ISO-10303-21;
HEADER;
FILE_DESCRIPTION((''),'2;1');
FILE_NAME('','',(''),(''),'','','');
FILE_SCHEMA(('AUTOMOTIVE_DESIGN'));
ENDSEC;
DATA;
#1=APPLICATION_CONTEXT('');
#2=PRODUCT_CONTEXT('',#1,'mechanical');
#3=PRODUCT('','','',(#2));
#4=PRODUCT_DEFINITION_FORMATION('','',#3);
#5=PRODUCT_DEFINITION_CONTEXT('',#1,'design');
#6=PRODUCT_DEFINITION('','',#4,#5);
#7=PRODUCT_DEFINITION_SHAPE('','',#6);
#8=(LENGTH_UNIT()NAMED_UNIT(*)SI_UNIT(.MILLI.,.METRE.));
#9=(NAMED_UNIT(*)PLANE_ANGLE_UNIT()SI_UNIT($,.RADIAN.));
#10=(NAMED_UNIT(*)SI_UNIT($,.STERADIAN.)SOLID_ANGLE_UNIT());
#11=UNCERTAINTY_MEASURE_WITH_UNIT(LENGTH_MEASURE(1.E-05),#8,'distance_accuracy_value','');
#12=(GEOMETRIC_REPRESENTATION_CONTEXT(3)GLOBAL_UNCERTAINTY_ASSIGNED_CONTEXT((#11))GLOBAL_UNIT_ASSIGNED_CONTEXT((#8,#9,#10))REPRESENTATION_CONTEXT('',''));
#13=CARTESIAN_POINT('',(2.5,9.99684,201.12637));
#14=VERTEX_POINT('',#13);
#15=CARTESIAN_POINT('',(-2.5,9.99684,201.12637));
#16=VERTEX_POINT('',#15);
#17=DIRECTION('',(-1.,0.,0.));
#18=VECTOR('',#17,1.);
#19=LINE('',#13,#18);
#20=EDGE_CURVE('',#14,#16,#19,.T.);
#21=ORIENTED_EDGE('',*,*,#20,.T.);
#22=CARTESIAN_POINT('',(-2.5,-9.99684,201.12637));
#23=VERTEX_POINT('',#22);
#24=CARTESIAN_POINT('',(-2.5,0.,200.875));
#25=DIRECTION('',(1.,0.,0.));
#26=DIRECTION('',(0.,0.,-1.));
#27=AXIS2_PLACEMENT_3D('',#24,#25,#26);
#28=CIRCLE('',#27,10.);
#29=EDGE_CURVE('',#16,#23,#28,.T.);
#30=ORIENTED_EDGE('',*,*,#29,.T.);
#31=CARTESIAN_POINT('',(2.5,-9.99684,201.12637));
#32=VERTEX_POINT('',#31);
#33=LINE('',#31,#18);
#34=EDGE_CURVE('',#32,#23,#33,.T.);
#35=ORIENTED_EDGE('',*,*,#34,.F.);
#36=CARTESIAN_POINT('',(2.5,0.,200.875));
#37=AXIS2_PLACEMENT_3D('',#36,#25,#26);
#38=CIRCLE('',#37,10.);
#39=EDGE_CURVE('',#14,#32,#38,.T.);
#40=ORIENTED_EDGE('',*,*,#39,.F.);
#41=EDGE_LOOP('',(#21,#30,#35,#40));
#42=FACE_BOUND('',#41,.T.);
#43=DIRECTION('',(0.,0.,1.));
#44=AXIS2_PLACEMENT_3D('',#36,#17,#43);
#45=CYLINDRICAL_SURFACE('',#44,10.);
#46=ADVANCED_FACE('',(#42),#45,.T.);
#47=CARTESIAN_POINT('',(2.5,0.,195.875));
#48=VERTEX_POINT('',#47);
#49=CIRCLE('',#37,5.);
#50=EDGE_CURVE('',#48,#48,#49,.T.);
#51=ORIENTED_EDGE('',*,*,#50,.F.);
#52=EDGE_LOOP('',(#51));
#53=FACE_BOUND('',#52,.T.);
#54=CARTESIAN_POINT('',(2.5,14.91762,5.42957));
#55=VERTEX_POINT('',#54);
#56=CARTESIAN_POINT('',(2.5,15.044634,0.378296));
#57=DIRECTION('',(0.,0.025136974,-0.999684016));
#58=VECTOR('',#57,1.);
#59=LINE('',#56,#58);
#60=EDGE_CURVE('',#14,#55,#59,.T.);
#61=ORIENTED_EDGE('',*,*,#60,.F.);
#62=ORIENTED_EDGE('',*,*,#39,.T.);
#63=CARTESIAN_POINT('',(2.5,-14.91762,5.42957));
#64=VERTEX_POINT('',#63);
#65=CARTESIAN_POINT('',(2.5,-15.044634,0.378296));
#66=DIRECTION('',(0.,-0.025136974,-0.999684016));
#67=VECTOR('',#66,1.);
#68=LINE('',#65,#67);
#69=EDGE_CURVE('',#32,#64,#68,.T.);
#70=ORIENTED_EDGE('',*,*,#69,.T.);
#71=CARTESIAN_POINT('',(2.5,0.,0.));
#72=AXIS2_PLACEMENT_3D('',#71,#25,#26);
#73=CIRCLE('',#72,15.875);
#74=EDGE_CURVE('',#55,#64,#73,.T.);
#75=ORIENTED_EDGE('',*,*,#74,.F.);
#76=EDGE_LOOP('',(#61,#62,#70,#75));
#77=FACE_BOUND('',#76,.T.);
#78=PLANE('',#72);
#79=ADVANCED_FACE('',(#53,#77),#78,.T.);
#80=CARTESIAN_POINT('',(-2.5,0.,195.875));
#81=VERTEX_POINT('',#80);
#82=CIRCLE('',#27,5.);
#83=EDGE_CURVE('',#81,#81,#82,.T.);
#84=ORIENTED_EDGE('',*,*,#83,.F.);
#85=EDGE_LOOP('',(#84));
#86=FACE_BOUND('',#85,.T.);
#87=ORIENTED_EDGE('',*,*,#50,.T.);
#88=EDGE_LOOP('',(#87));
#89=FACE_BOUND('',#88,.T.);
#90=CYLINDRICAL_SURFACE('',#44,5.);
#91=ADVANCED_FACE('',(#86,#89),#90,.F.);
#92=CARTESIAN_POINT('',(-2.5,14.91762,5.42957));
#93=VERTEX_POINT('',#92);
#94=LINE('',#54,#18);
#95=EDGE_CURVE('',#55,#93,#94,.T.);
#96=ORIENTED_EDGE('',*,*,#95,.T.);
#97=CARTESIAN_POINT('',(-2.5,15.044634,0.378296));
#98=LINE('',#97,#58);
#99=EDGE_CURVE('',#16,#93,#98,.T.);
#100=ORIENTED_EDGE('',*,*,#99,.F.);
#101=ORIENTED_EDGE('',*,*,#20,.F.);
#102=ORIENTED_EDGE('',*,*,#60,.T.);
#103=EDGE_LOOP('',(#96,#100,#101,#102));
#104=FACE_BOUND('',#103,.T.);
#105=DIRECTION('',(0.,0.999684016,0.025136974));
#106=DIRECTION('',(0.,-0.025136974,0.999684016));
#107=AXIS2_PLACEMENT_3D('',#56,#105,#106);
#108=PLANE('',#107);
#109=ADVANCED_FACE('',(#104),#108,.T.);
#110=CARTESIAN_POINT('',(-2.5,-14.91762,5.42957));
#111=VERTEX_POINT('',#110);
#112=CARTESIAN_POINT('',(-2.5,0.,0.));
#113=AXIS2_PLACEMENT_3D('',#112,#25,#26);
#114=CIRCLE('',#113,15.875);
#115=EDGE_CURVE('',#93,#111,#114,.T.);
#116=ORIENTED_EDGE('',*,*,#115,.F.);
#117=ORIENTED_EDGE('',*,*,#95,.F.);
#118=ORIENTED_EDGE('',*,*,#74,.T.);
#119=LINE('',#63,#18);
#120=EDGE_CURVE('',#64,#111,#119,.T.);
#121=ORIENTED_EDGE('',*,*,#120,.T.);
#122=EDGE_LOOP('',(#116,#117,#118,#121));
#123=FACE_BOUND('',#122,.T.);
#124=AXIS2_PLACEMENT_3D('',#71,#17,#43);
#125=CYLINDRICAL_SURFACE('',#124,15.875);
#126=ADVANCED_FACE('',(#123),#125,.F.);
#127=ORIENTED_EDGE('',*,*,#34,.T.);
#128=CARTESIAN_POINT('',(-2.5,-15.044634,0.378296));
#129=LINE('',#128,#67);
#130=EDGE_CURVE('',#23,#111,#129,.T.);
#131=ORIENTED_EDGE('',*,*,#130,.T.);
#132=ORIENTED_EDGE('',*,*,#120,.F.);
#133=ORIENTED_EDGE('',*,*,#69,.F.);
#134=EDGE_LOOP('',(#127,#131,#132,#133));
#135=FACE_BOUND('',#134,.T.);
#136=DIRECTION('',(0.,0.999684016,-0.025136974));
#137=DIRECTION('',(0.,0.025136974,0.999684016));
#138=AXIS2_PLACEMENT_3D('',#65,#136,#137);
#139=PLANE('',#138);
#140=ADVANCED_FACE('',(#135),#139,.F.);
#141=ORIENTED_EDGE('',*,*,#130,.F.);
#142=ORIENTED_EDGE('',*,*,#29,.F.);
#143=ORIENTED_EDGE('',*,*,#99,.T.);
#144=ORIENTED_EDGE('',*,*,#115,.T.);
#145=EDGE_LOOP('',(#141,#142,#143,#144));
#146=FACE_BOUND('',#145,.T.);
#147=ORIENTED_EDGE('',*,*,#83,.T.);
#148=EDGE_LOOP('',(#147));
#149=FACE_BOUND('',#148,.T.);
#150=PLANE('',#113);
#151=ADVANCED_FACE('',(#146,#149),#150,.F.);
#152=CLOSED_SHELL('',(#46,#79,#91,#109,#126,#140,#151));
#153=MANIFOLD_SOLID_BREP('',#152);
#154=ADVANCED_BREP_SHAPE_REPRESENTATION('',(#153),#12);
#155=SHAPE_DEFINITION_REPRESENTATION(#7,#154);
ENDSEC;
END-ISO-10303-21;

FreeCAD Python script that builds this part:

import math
import FreeCAD as App
import Part
import Sketcher

V = App.Vector
Q = App.Units.Quantity

doc = App.newDocument("Part")
params = doc.addObject("Spreadsheet::Sheet", "Params")
for row, (alias, value) in enumerate([
    ("sketch1_diameter", "10 mm"),
    ("sketch1_radius", "10 mm"),
    ("pad1_length", "5 mm"),
], start=1):
    params.set(f"A{row}", alias)
    params.set(f"B{row}", "=" + value)
    params.setAlias(f"B{row}", alias)

body = doc.addObject("PartDesign::Body", "Body")

# Sketch on YZ plane
sketch1 = doc.addObject("Sketcher::SketchObject", "Sketch")
body.addObject(sketch1)
sketch1.AttachmentSupport = (doc.YZ_Plane, [""])
sketch1.MapMode = "FlatFace"
sketch1.addGeometry([
    Part.LineSegment(V(15, 5, 0), V(10, 201, 0)),  # 0
    Part.ArcOfCircle(Part.Circle(V(0, 201, 0), V(0, 0, 1), 10), math.radians(1), math.radians(179)),  # 1
    Part.LineSegment(V(-10, 201, 0), V(-15, 5, 0)),  # 2
    Part.ArcOfCircle(Part.Circle(V(0, 0, 0), V(0, 0, 1), 16), math.radians(20), math.radians(160)),  # 3
    Part.Circle(V(0, 201, 0), V(0, 0, 1), 5),  # 4
], False)
sketch1.addConstraint([
    Sketcher.Constraint("Tangent", 0, 2, 1, 1),
    Sketcher.Constraint("Tangent", 1, 2, 2, 1),
    Sketcher.Constraint("Coincident", 2, 2, 3, 2),
    Sketcher.Constraint("Coincident", 3, 1, 0, 1),
    Sketcher.Constraint("Coincident", 3, 3, -1, 1),
    Sketcher.Constraint("Coincident", 4, 3, 1, 3),
    Sketcher.Constraint("Symmetric", 0, 2, 1, 2, -2),
    Sketcher.Constraint("Diameter", 4, Q("10 mm")),
    Sketcher.Constraint("Radius", 1, Q("10 mm")),
    Sketcher.Constraint("Radius", 3, Q("15.875 mm")),
    Sketcher.Constraint("DistanceY", -1, 1, 1, 3, Q("200.875 mm")),
    Sketcher.Constraint("DistanceY", 2, 2, 1, 2, Q("195.6968 mm")),
])
sketch1.setExpression("Constraints[7]", "Params.sketch1_diameter")
sketch1.setExpression("Constraints[8]", "Params.sketch1_radius")
pad1 = doc.addObject("PartDesign::Pad", "Pad")
body.addObject(pad1)
pad1.Profile = sketch1
pad1.setExpression("Length", "Params.pad1_length")
pad1.Midplane = True

doc.recompute()
